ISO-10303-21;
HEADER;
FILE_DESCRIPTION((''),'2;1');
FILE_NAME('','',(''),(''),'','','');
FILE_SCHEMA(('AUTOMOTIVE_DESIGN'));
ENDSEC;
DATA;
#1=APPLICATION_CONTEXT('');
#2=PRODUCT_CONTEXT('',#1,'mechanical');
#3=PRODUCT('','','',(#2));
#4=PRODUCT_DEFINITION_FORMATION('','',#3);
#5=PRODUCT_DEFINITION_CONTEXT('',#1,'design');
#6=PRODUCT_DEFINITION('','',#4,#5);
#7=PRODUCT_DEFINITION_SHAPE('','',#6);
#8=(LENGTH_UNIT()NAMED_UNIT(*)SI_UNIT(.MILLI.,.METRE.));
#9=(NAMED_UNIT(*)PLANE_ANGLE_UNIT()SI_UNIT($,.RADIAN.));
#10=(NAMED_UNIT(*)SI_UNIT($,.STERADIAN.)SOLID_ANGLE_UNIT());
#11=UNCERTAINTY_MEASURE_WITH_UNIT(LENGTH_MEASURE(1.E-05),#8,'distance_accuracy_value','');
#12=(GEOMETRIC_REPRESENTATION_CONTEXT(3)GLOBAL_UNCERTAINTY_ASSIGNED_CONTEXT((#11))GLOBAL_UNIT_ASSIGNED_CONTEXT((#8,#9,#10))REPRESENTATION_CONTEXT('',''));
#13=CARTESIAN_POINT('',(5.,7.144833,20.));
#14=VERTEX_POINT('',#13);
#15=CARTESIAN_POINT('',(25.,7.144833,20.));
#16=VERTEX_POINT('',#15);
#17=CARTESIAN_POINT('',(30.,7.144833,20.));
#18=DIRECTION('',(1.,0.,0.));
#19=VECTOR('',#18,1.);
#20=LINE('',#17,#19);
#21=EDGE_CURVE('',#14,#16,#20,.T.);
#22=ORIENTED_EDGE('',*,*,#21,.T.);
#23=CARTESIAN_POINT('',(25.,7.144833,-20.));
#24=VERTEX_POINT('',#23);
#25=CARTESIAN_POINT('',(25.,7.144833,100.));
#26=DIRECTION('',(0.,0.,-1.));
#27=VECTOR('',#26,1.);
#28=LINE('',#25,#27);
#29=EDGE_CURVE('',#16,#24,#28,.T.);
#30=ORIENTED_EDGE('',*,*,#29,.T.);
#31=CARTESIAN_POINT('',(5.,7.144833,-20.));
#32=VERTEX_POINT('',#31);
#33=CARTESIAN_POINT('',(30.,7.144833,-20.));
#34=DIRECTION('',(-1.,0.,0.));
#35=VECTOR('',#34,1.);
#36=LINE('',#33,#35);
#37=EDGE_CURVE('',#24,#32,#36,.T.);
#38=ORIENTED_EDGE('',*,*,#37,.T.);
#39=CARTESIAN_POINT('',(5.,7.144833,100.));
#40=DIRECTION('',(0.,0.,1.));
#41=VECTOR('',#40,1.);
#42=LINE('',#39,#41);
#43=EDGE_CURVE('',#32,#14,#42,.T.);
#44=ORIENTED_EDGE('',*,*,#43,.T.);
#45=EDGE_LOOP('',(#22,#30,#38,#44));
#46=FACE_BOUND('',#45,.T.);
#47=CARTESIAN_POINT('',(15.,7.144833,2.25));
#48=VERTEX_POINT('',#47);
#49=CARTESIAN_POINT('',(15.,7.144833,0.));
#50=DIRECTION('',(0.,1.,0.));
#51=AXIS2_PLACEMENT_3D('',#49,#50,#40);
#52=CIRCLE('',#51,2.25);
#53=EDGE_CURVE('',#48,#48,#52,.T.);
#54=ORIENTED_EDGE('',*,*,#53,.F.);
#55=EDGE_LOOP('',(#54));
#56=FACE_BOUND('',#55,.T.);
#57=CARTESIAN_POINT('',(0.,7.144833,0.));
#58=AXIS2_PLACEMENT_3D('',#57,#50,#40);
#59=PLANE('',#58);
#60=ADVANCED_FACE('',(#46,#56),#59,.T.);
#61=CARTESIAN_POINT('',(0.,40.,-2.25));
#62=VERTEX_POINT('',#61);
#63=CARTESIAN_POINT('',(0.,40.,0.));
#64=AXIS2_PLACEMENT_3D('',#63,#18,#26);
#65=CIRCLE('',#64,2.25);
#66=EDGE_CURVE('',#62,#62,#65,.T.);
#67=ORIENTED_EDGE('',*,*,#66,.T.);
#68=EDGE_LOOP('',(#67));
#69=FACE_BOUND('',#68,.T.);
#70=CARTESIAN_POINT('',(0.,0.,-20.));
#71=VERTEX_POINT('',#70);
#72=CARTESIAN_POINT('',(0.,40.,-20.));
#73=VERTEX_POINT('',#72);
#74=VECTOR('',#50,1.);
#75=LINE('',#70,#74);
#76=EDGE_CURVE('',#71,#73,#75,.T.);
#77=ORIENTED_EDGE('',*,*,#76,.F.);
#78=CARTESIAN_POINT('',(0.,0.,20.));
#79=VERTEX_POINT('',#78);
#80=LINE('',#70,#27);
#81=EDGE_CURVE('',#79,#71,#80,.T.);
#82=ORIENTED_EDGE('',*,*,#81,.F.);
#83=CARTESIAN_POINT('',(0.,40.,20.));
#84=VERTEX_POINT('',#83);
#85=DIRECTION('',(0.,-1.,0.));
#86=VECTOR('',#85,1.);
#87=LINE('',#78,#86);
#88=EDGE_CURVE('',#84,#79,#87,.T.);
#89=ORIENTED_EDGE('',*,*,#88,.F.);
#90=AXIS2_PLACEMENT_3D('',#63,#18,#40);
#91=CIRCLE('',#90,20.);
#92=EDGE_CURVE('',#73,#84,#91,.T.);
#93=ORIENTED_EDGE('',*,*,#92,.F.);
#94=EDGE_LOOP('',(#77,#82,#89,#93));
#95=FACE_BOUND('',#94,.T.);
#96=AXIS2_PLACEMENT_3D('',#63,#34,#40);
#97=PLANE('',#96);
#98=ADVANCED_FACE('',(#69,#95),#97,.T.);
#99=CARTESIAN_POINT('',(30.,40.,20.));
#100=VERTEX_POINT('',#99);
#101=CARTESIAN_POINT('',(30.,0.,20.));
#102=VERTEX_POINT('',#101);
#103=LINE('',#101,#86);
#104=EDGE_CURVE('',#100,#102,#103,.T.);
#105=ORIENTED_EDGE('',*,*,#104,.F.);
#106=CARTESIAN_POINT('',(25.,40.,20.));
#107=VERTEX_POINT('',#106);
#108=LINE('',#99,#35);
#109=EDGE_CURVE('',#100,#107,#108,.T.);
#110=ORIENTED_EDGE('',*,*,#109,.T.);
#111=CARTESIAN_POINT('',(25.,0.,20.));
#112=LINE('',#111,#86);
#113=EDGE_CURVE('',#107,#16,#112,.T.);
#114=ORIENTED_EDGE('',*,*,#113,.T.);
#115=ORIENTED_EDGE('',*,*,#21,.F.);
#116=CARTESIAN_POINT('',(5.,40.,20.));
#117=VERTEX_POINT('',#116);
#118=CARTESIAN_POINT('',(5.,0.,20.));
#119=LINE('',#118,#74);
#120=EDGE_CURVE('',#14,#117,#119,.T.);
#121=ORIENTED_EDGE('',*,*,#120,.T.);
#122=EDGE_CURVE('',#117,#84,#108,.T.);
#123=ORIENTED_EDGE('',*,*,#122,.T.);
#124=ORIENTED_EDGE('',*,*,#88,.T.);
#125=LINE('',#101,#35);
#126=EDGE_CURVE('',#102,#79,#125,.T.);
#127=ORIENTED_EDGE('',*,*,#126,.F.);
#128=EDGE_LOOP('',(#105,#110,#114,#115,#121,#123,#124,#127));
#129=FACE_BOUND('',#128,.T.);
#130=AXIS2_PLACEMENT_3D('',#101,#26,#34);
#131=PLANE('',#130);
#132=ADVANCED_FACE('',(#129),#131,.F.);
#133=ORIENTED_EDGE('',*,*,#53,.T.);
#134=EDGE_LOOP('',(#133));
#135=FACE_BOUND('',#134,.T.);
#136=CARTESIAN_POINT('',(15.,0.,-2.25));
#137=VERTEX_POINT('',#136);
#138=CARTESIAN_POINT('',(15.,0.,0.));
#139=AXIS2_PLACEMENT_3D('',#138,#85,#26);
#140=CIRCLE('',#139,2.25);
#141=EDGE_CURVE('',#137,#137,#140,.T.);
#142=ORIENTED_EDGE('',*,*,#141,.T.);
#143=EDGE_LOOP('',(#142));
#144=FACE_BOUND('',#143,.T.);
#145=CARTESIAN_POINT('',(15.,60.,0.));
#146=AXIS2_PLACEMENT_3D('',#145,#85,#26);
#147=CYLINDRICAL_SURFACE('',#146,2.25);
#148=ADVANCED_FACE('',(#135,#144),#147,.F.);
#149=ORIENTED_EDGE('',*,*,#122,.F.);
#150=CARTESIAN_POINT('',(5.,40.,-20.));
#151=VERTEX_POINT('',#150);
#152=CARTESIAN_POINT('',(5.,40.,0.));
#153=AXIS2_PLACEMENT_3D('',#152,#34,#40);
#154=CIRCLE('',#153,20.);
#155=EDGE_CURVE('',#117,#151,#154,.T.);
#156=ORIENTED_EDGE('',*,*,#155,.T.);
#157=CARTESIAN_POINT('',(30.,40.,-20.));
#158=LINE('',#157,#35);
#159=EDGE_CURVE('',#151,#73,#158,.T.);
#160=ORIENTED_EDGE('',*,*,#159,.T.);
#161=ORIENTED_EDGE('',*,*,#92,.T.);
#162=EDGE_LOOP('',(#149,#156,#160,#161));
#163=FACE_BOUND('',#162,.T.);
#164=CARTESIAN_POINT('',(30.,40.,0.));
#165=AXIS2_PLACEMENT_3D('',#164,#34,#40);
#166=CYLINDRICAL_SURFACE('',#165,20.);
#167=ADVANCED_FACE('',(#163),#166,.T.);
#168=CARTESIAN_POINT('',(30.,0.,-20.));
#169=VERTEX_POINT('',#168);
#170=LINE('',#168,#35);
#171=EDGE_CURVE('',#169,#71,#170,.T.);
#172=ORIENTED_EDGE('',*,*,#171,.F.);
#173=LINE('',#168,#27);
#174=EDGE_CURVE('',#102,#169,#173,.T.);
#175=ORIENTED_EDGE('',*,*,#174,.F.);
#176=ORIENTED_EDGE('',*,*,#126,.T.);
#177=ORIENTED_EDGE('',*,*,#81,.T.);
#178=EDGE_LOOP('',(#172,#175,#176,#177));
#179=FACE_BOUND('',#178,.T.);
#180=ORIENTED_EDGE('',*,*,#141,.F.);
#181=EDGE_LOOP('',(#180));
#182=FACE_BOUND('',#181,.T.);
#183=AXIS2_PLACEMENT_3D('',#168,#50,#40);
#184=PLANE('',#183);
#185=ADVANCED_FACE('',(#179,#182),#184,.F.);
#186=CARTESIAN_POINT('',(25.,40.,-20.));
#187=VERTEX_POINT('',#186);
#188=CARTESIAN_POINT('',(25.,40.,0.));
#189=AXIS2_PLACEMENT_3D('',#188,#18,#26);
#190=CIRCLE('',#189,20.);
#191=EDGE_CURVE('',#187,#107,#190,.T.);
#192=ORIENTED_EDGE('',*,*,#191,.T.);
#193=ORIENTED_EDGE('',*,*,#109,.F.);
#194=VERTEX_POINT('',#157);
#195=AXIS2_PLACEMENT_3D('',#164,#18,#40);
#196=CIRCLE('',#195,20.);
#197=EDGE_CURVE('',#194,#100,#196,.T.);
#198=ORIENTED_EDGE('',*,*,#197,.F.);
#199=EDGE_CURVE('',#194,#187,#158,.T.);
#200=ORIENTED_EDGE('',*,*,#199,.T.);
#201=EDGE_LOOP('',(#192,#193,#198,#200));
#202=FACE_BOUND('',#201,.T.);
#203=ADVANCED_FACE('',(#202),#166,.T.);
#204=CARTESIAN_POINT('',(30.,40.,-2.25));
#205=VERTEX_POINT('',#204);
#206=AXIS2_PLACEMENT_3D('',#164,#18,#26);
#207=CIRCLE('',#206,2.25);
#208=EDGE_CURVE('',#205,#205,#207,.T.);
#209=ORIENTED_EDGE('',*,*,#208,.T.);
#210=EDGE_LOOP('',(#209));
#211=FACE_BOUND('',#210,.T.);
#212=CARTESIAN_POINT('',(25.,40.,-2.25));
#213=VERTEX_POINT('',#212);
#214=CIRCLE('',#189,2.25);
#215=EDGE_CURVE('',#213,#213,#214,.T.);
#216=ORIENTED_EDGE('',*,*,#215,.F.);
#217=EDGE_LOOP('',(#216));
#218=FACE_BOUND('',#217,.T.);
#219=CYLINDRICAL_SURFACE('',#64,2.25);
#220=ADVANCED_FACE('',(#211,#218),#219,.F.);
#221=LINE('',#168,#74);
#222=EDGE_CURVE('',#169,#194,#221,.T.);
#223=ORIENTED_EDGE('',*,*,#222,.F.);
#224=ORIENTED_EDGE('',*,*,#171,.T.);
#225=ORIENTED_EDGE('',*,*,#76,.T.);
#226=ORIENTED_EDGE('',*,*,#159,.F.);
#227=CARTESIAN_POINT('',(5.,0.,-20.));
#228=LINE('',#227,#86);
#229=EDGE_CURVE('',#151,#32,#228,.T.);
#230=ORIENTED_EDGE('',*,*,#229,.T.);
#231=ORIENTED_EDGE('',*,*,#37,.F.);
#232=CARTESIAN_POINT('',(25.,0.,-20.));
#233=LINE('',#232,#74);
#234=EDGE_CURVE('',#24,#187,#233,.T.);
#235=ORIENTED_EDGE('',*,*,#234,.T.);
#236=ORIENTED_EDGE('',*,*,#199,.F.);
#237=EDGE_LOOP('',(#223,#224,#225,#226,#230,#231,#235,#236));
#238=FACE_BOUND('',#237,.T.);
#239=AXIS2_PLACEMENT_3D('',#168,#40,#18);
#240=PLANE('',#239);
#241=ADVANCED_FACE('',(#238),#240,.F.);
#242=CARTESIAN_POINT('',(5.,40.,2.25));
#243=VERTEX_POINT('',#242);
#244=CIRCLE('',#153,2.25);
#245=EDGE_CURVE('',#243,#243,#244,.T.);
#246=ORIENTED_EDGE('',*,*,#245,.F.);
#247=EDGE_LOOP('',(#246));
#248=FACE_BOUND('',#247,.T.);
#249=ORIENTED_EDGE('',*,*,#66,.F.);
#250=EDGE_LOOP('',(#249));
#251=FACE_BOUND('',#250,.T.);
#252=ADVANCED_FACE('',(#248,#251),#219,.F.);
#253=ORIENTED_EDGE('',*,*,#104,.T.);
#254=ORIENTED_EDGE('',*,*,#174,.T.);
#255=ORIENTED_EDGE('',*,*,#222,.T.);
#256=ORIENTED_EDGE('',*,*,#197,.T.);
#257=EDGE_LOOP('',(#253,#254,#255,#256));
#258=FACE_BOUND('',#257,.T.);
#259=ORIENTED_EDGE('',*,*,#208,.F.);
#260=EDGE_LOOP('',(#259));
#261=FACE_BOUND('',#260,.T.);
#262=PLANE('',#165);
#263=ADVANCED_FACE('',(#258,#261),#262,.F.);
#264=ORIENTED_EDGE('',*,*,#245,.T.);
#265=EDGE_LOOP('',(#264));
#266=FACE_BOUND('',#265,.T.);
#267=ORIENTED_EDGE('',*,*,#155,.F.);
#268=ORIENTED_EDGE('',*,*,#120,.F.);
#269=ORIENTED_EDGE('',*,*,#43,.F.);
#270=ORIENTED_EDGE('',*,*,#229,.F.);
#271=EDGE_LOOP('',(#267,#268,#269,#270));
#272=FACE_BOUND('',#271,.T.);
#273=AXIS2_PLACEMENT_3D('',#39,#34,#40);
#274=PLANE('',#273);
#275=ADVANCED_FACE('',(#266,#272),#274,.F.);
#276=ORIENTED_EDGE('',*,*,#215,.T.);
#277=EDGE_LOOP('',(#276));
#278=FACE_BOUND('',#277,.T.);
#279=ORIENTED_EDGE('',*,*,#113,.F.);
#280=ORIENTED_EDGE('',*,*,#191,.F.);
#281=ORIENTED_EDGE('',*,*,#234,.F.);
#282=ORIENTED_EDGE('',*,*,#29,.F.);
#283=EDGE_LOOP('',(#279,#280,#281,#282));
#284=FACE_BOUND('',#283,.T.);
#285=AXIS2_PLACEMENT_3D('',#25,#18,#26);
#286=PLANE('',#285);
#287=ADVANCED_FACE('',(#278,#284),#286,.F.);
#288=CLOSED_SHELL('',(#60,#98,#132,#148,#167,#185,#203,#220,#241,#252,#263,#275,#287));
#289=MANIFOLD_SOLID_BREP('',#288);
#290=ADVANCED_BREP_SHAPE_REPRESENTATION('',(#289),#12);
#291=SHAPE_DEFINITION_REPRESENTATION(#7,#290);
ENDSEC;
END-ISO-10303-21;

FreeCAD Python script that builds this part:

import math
import FreeCAD as App
import Part
import Sketcher

V = App.Vector

doc = App.newDocument("Part")
params = doc.addObject("Spreadsheet::Sheet", "Params")
for row, (alias, value) in enumerate([
    ("sketch1_radius", "20 mm"),
    ("pad1_length", "30 mm"),
    ("sketch2_width", "20 mm"),
    ("sketch2_height", "200 mm"),
    ("pocket1_length", "260 mm"),
    ("sketch3_diameter", "4.5 mm"),
    ("sketch4_diameter", "4.5 mm"),
], start=1):
    params.set(f"A{row}", alias)
    params.set(f"B{row}", "=" + value)
    params.setAlias(f"B{row}", alias)

body = doc.addObject("PartDesign::Body", "Body")

sketch1 = body.newObject("Sketcher::SketchObject", "Sketch")
sketch1.AttachmentSupport = (doc.getObject("YZ_Plane"), [""])
sketch1.MapMode = "FlatFace"
sketch1.addGeometry([
    Part.LineSegment(V(0, 20, 0), V(0, -20, 0)),
    Part.LineSegment(V(0, -20, 0), V(40, -20, 0)),
    Part.ArcOfCircle(Part.Circle(V(40, 0, 0), V(0, 0, 1), 20), math.radians(-90), math.radians(90)),
    Part.LineSegment(V(40, 20, 0), V(0, 20, 0)),
], False)
sketch1.addConstraint([
    Sketcher.Constraint("Coincident", 0, 2, 1, 1),
    Sketcher.Constraint("Tangent", 1, 2, 2, 1),
    Sketcher.Constraint("Tangent", 2, 2, 3, 1),
    Sketcher.Constraint("Coincident", 3, 2, 0, 1),
    Sketcher.Constraint("Vertical", 0),
    Sketcher.Constraint("Horizontal", 1),
    Sketcher.Constraint("Horizontal", 3),
    Sketcher.Constraint("Symmetric", 0, 2, 3, 2, -1, 1),
    Sketcher.Constraint("Equal", 3, 0),
    Sketcher.Constraint("Radius", 2, 20.0),
])
sketch1.setExpression("Constraints[9]", "Params.sketch1_radius")
pad1 = body.newObject("PartDesign::Pad", "Pad")
pad1.Profile = sketch1
pad1.setExpression("Length", "Params.pad1_length")

sketch2 = body.newObject("Sketcher::SketchObject", "Sketch001")
sketch2.AttachmentSupport = (doc.getObject("XZ_Plane"), [""])
sketch2.MapMode = "FlatFace"
sketch2.AttachmentOffset = App.Placement(V(0, 0, -267.144833), App.Rotation())
sketch2.addGeometry([
    Part.LineSegment(V(5, -100, 0), V(5, 100, 0)),
    Part.LineSegment(V(5, 100, 0), V(25, 100, 0)),
    Part.LineSegment(V(25, 100, 0), V(25, -100, 0)),
    Part.LineSegment(V(25, -100, 0), V(5, -100, 0)),
], False)
sketch2.addConstraint([
    Sketcher.Constraint("Coincident", 0, 2, 1, 1),
    Sketcher.Constraint("Coincident", 1, 2, 2, 1),
    Sketcher.Constraint("Coincident", 2, 2, 3, 1),
    Sketcher.Constraint("Coincident", 3, 2, 0, 1),
    Sketcher.Constraint("Vertical", 0),
    Sketcher.Constraint("Horizontal", 1),
    Sketcher.Constraint("Vertical", 2),
    Sketcher.Constraint("Horizontal", 3),
    Sketcher.Constraint("DistanceX", 1, 1, 1, 2, 20.0),
    Sketcher.Constraint("DistanceY", 0, 1, 0, 2, 200.0),
    Sketcher.Constraint("DistanceX", -1, 1, 0, 2, 5.0),
    Sketcher.Constraint("DistanceY", -1, 1, 0, 2, 100.0),
])
sketch2.setExpression("Constraints[8]", "Params.sketch2_width")
sketch2.setExpression("Constraints[9]", "Params.sketch2_height")
pocket1 = body.newObject("PartDesign::Pocket", "Pocket")
pocket1.Profile = sketch2
pocket1.setExpression("Length", "Params.pocket1_length")
pocket1.Reversed = True

sketch3 = body.newObject("Sketcher::SketchObject", "Sketch002")
sketch3.AttachmentSupport = (doc.getObject("XZ_Plane"), [""])
sketch3.MapMode = "FlatFace"
sketch3.addGeometry(Part.Circle(V(15, 0, 0), V(0, 0, 1), 2.25), False)
sketch3.addConstraint([
    Sketcher.Constraint("PointOnObject", 0, 3, -1),
    Sketcher.Constraint("Diameter", 0, 4.5),
    Sketcher.Constraint("DistanceX", -1, 1, 0, 3, 15.0),
])
sketch3.setExpression("Constraints[1]", "Params.sketch3_diameter")
pocket2 = body.newObject("PartDesign::Pocket", "Pocket001")
pocket2.Profile = sketch3
pocket2.Type = "ThroughAll"

sketch4 = body.newObject("Sketcher::SketchObject", "Sketch003")
sketch4.AttachmentSupport = (doc.getObject("YZ_Plane"), [""])
sketch4.MapMode = "FlatFace"
sketch4.AttachmentOffset = App.Placement(V(0, 0, 30), App.Rotation())
sketch4.addGeometry(Part.Circle(V(40, 0, 0), V(0, 0, 1), 2.25), False)
sketch4.addConstraint([
    Sketcher.Constraint("PointOnObject", 0, 3, -1),
    Sketcher.Constraint("Diameter", 0, 4.5),
    Sketcher.Constraint("DistanceX", -1, 1, 0, 3, 40.0),
])
sketch4.setExpression("Constraints[1]", "Params.sketch4_diameter")
pocket3 = body.newObject("PartDesign::Pocket", "Pocket002")
pocket3.Profile = sketch4
pocket3.Type = "ThroughAll"

doc.recompute()
